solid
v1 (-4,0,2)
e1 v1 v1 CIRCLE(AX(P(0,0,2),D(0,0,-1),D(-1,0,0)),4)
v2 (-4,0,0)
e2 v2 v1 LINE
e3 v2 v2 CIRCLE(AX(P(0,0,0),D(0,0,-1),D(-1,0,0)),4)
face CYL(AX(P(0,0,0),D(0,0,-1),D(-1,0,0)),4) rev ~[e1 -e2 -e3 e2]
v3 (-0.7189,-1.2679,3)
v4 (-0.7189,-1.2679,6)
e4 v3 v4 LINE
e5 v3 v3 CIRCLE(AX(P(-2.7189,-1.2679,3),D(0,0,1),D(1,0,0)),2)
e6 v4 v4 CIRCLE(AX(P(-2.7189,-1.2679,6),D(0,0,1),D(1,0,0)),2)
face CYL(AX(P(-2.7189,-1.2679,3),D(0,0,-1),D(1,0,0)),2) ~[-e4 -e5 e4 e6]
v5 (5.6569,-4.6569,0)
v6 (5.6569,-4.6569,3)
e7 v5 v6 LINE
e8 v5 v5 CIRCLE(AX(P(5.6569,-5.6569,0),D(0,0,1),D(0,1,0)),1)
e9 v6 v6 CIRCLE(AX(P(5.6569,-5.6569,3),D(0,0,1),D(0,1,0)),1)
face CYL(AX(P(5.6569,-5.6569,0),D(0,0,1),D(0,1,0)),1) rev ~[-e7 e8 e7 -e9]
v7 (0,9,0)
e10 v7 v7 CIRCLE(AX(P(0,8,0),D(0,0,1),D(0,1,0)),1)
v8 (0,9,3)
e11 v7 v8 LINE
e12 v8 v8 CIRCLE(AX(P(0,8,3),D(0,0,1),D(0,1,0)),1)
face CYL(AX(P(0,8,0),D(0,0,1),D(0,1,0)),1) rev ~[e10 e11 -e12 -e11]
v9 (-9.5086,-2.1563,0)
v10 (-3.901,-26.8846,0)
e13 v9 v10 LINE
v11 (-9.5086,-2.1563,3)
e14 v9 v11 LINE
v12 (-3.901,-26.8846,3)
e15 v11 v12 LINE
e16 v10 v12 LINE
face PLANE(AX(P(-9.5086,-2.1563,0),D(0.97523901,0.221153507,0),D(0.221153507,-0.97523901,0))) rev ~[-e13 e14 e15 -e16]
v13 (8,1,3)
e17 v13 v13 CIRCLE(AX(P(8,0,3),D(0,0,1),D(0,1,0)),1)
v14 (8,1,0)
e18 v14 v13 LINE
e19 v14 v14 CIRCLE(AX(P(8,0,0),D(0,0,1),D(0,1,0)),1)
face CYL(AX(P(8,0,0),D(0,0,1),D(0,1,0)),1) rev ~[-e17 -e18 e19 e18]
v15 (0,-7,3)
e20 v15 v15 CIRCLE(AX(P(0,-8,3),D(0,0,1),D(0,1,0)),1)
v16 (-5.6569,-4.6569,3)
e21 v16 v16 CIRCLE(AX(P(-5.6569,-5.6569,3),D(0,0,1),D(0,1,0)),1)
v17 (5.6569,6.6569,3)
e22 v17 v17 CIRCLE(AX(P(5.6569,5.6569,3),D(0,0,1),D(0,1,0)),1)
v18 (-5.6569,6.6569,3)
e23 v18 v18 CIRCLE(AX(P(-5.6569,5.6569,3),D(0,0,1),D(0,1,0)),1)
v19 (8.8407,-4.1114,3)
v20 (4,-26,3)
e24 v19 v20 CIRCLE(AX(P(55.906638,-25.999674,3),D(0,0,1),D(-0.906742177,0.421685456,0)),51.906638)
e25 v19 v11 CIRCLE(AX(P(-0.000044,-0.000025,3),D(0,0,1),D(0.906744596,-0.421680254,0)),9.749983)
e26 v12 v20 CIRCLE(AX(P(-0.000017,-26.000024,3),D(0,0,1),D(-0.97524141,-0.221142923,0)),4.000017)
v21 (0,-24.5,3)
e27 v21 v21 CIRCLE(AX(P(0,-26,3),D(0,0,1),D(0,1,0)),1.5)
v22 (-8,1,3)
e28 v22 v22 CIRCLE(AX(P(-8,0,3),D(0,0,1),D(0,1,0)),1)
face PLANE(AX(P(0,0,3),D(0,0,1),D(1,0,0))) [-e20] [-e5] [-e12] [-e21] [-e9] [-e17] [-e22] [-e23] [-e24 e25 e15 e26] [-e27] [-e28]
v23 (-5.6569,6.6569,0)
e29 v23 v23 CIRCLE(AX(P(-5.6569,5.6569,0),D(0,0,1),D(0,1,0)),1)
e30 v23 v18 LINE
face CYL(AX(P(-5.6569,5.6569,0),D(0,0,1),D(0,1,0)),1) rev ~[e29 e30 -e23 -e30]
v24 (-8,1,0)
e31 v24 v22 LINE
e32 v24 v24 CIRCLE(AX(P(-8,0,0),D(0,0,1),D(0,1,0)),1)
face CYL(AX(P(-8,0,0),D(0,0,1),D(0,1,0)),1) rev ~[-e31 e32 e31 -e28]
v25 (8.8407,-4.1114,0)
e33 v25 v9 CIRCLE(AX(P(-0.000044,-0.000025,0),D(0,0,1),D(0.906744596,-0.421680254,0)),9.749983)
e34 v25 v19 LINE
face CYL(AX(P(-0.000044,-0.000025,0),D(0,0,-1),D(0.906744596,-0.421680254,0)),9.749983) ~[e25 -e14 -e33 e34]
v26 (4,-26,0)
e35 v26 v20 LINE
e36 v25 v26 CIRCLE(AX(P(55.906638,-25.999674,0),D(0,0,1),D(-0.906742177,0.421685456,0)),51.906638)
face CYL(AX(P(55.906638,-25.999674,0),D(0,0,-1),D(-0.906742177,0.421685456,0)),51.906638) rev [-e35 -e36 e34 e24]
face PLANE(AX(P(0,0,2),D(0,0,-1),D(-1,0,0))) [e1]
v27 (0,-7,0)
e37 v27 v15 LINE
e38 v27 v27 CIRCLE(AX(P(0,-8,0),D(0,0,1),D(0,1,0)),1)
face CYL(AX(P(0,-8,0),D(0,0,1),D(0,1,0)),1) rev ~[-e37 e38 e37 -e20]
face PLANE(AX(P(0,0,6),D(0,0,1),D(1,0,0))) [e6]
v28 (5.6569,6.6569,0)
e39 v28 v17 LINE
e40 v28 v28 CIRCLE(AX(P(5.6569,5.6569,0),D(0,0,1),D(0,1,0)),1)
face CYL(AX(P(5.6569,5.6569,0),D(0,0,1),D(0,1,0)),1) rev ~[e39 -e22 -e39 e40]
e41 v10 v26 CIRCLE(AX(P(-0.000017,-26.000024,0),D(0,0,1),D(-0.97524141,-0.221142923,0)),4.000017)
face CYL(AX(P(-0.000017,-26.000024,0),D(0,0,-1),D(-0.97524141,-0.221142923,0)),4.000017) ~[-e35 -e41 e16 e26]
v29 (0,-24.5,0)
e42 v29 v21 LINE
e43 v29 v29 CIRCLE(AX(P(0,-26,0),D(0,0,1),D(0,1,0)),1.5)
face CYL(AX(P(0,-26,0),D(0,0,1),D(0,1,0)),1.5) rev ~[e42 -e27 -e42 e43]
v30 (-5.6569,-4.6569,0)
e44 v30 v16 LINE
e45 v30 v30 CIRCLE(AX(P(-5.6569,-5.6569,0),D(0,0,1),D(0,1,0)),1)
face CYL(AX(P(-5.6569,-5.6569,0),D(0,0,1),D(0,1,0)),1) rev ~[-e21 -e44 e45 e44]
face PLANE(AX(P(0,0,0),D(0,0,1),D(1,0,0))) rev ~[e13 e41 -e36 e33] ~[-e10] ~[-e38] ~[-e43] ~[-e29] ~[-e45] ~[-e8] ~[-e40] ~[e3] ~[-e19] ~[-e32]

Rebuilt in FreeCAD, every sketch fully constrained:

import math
import FreeCAD as App
import Part
import Sketcher
Q = App.Units.Quantity

doc = App.newDocument("Part")
body = doc.addObject("PartDesign::Body", "Body")

sketch1 = doc.addObject("Sketcher::SketchObject", "Sketch")
body.addObject(sketch1)
sketch1.AttachmentSupport = (doc.XY_Plane, [""])
sketch1.MapMode = "FlatFace"
sketch1.addGeometry(Part.ArcOfCircle(Part.Circle(App.Vector(55.9, -26, 0), App.Vector(0, 0, 1), 51.9), math.radians(155), math.radians(180)), False)
sketch1.addGeometry(Part.ArcOfCircle(Part.Circle(App.Vector(0, 0, 0), App.Vector(0, 0, 1), 9.7), math.radians(-25), math.radians(193)), False)
sketch1.addGeometry(Part.LineSegment(App.Vector(-9.5, -2.2, 0), App.Vector(-3.9, -26.9, 0)), False)
sketch1.addGeometry(Part.ArcOfCircle(Part.Circle(App.Vector(0, -26, 0), App.Vector(0, 0, 1), 4), math.radians(-167), math.radians(0)), False)
sketch1.addConstraint(Sketcher.Constraint("Tangent", 0, 1, 1, 1))
sketch1.addConstraint(Sketcher.Constraint("Tangent", 1, 2, 2, 1))
sketch1.addConstraint(Sketcher.Constraint("Tangent", 2, 2, 3, 1))
sketch1.addConstraint(Sketcher.Constraint("Tangent", 3, 2, 0, 2))
sketch1.addConstraint(Sketcher.Constraint("Coincident", 1, 3, -1, 1))
sketch1.addConstraint(Sketcher.Constraint("PointOnObject", 3, 3, -2))
sketch1.addConstraint(Sketcher.Constraint("Radius", 3, Q("4 mm")))
sketch1.addConstraint(Sketcher.Constraint("Radius", 1, Q("9.75 mm")))
sketch1.addConstraint(Sketcher.Constraint("DistanceY", 3, 3, -1, 1, Q("26 mm")))
sketch1.addConstraint(Sketcher.Constraint("DistanceY", 3, 2, -1, 1, Q("26 mm")))
pad1 = doc.addObject("PartDesign::Pad", "Pad")
body.addObject(pad1)
pad1.Profile = sketch1
pad1.Length = 3

sketch2 = doc.addObject("Sketcher::SketchObject", "Sketch001")
body.addObject(sketch2)
sketch2.AttachmentSupport = (doc.XY_Plane, [""])
sketch2.MapMode = "FlatFace"
sketch2.addGeometry(Part.Circle(App.Vector(8, 0, 0), App.Vector(0, 0, 1), 1), False)
sketch2.addGeometry(Part.Circle(App.Vector(5.7, 5.7, 0), App.Vector(0, 0, 1), 1), False)
sketch2.addGeometry(Part.Circle(App.Vector(0, 8, 0), App.Vector(0, 0, 1), 1), False)
sketch2.addGeometry(Part.Circle(App.Vector(-5.7, 5.7, 0), App.Vector(0, 0, 1), 1), False)
sketch2.addGeometry(Part.Circle(App.Vector(-8, 0, 0), App.Vector(0, 0, 1), 1), False)
sketch2.addGeometry(Part.Circle(App.Vector(-5.7, -5.7, 0), App.Vector(0, 0, 1), 1), False)
sketch2.addGeometry(Part.Circle(App.Vector(0, -8, 0), App.Vector(0, 0, 1), 1), False)
sketch2.addGeometry(Part.Circle(App.Vector(5.7, -5.7, 0), App.Vector(0, 0, 1), 1), False)
sketch2.addConstraint(Sketcher.Constraint("Equal", 0, 1))
sketch2.addConstraint(Sketcher.Constraint("Equal", 1, 2))
sketch2.addConstraint(Sketcher.Constraint("Equal", 2, 3))
sketch2.addConstraint(Sketcher.Constraint("Equal", 3, 4))
sketch2.addConstraint(Sketcher.Constraint("Equal", 4, 5))
sketch2.addConstraint(Sketcher.Constraint("Equal", 5, 6))
sketch2.addConstraint(Sketcher.Constraint("Equal", 6, 7))
sketch2.addConstraint(Sketcher.Constraint("Symmetric", 0, 3, 4, 3, -1, 1))
sketch2.addConstraint(Sketcher.Constraint("Symmetric", 1, 3, 5, 3, -1, 1))
sketch2.addConstraint(Sketcher.Constraint("Symmetric", 2, 3, 6, 3, -1, 1))
sketch2.addConstraint(Sketcher.Constraint("Symmetric", 3, 3, 7, 3, -1, 1))
sketch2.addConstraint(Sketcher.Constraint("Symmetric", 1, 3, 3, 3, -2))
sketch2.addConstraint(Sketcher.Constraint("PointOnObject", 0, 3, -1))
sketch2.addConstraint(Sketcher.Constraint("PointOnObject", 2, 3, -2))
sketch2.addConstraint(Sketcher.Constraint("Diameter", 0, Q("2 mm")))
sketch2.addConstraint(Sketcher.Constraint("DistanceX", -1, 1, 0, 3, Q("8 mm")))
sketch2.addConstraint(Sketcher.Constraint("DistanceY", -1, 1, 2, 3, Q("8 mm")))
sketch2.addConstraint(Sketcher.Constraint("DistanceX", -1, 1, 1, 3, Q("5.657 mm")))
sketch2.addConstraint(Sketcher.Constraint("DistanceY", -1, 1, 1, 3, Q("5.657 mm")))
doc.recompute()
hole = doc.addObject("PartDesign::Hole", "Hole")
body.addObject(hole)
hole.Profile = sketch2
hole.ThreadType = "None"
hole.Diameter = 2
hole.DepthType = "ThroughAll"
hole.Reversed = True

sketch3 = doc.addObject("Sketcher::SketchObject", "Sketch002")
body.addObject(sketch3)
sketch3.AttachmentSupport = (doc.XY_Plane, [""])
sketch3.MapMode = "FlatFace"
sketch3.addGeometry(Part.Circle(App.Vector(0, -26, 0), App.Vector(0, 0, 1), 1.5), False)
sketch3.addConstraint(Sketcher.Constraint("PointOnObject", 0, 3, -2))
sketch3.addConstraint(Sketcher.Constraint("Diameter", 0, Q("3 mm")))
sketch3.addConstraint(Sketcher.Constraint("DistanceY", 0, 3, -1, 1, Q("26 mm")))
doc.recompute()
hole2 = doc.addObject("PartDesign::Hole", "Hole001")
body.addObject(hole2)
hole2.Profile = sketch3
hole2.ThreadType = "None"
hole2.Diameter = 3
hole2.DepthType = "ThroughAll"
hole2.Reversed = True

sketch4 = doc.addObject("Sketcher::SketchObject", "Sketch003")
body.addObject(sketch4)
sketch4.AttachmentSupport = (doc.XY_Plane, [""])
sketch4.MapMode = "FlatFace"
sketch4.addGeometry(Part.Circle(App.Vector(0, 0, 0), App.Vector(0, 0, 1), 4), False)
sketch4.addConstraint(Sketcher.Constraint("Coincident", 0, 3, -1, 1))
sketch4.addConstraint(Sketcher.Constraint("Diameter", 0, Q("8 mm")))
pocket1 = doc.addObject("PartDesign::Pocket", "Pocket")
body.addObject(pocket1)
pocket1.Profile = sketch4
pocket1.Length = 2
pocket1.Reversed = True

sketch5 = doc.addObject("Sketcher::SketchObject", "Sketch004")
body.addObject(sketch5)
sketch5.AttachmentSupport = (doc.XY_Plane, [""])
sketch5.MapMode = "FlatFace"
sketch5.AttachmentOffset = App.Placement(App.Vector(0, 0, 3), App.Rotation())
sketch5.addGeometry(Part.Circle(App.Vector(-2.7, -1.3, 0), App.Vector(0, 0, 1), 2), False)
sketch5.addConstraint(Sketcher.Constraint("Diameter", 0, Q("4 mm")))
sketch5.addConstraint(Sketcher.Constraint("DistanceX", 0, 3, -1, 1, Q("2.719 mm")))
sketch5.addConstraint(Sketcher.Constraint("DistanceY", 0, 3, -1, 1, Q("1.268 mm")))
pad2 = doc.addObject("PartDesign::Pad", "Pad001")
body.addObject(pad2)
pad2.Profile = sketch5
pad2.Length = 3

doc.recompute()
